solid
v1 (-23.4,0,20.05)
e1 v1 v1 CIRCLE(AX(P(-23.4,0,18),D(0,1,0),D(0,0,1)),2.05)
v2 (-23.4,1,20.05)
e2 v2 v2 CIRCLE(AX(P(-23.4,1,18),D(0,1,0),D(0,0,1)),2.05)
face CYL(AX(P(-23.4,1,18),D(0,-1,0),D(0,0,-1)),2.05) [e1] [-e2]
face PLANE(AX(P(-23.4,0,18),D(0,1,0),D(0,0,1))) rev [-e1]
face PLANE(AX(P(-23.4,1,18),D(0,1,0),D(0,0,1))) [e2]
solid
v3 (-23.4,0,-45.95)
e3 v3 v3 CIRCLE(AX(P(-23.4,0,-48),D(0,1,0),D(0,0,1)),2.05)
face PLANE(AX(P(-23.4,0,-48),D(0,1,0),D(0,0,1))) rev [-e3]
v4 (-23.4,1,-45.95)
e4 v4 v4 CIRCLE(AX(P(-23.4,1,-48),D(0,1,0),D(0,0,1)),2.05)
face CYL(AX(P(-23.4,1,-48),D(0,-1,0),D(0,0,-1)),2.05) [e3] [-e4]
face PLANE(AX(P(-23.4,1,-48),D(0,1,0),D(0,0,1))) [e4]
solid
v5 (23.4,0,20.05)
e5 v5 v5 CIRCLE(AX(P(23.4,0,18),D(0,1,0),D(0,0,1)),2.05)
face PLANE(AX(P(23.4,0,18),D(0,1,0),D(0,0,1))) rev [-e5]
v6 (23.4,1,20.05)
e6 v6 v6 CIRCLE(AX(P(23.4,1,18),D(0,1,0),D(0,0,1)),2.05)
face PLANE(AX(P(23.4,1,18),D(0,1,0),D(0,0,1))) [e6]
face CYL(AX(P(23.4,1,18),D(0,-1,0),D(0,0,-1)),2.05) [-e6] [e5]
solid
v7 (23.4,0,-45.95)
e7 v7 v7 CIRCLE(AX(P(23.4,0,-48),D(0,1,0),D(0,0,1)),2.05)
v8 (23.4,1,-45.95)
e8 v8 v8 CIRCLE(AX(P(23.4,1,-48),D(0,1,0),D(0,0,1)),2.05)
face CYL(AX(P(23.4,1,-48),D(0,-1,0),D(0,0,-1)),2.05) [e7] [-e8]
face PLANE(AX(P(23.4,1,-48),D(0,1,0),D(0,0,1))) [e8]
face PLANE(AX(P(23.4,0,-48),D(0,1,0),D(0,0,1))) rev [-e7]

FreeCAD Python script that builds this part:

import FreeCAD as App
import Part
import Sketcher
from FreeCAD import Vector
Q = App.Units.Quantity

doc = App.newDocument("Part")
body = doc.addObject("PartDesign::Body", "Body")

# Sketch on XZ plane
sketch1 = body.newObject("Sketcher::SketchObject", "Sketch")
sketch1.AttachmentSupport = (doc.getObject("XZ_Plane"), [""])
sketch1.MapMode = "FlatFace"
sketch1.addGeometry(Part.Circle(Vector(-23.4, -48, 0), Vector(0, 0, 1), 2), False)
sketch1.addConstraint([
    Sketcher.Constraint("Diameter", 0, Q("4.1 mm")),
    Sketcher.Constraint("DistanceY", 0, 3, -1, 1, Q("48 mm")),
    Sketcher.Constraint("DistanceX", 0, 3, -1, 1, Q("23.4 mm")),
])
pad1 = body.newObject("PartDesign::Pad", "Pad")
pad1.Profile = sketch1
pad1.Length = 1
pad1.Reversed = True
body2 = doc.addObject("PartDesign::Body", "Body001")

# Sketch on XZ plane
sketch2 = body2.newObject("Sketcher::SketchObject", "Sketch001")
sketch2.AttachmentSupport = (doc.getObject("XZ_Plane001"), [""])
sketch2.MapMode = "FlatFace"
sketch2.addGeometry(Part.Circle(Vector(-23.4, 18, 0), Vector(0, 0, 1), 2), False)
sketch2.addConstraint([
    Sketcher.Constraint("Diameter", 0, Q("4.1 mm")),
    Sketcher.Constraint("DistanceY", -1, 1, 0, 3, Q("18 mm")),
    Sketcher.Constraint("DistanceX", 0, 3, -1, 1, Q("23.4 mm")),
])
pad2 = body2.newObject("PartDesign::Pad", "Pad001")
pad2.Profile = sketch2
pad2.Length = 1
pad2.Reversed = True
body3 = doc.addObject("PartDesign::Body", "Body002")

# Sketch on XZ plane
sketch3 = body3.newObject("Sketcher::SketchObject", "Sketch002")
sketch3.AttachmentSupport = (doc.getObject("XZ_Plane002"), [""])
sketch3.MapMode = "FlatFace"
sketch3.addGeometry(Part.Circle(Vector(23.4, -48, 0), Vector(0, 0, 1), 2), False)
sketch3.addConstraint([
    Sketcher.Constraint("Diameter", 0, Q("4.1 mm")),
    Sketcher.Constraint("DistanceY", 0, 3, -1, 1, Q("48 mm")),
    Sketcher.Constraint("DistanceX", -1, 1, 0, 3, Q("23.4 mm")),
])
pad3 = body3.newObject("PartDesign::Pad", "Pad002")
pad3.Profile = sketch3
pad3.Length = 1
pad3.Reversed = True
body4 = doc.addObject("PartDesign::Body", "Body003")

# Sketch on XZ plane
sketch4 = body4.newObject("Sketcher::SketchObject", "Sketch003")
sketch4.AttachmentSupport = (doc.getObject("XZ_Plane003"), [""])
sketch4.MapMode = "FlatFace"
sketch4.addGeometry(Part.Circle(Vector(23.4, 18, 0), Vector(0, 0, 1), 2), False)
sketch4.addConstraint([
    Sketcher.Constraint("Diameter", 0, Q("4.1 mm")),
    Sketcher.Constraint("DistanceY", -1, 1, 0, 3, Q("18 mm")),
    Sketcher.Constraint("DistanceX", -1, 1, 0, 3, Q("23.4 mm")),
])
pad4 = body4.newObject("PartDesign::Pad", "Pad003")
pad4.Profile = sketch4
pad4.Length = 1
pad4.Reversed = True

doc.recompute()
